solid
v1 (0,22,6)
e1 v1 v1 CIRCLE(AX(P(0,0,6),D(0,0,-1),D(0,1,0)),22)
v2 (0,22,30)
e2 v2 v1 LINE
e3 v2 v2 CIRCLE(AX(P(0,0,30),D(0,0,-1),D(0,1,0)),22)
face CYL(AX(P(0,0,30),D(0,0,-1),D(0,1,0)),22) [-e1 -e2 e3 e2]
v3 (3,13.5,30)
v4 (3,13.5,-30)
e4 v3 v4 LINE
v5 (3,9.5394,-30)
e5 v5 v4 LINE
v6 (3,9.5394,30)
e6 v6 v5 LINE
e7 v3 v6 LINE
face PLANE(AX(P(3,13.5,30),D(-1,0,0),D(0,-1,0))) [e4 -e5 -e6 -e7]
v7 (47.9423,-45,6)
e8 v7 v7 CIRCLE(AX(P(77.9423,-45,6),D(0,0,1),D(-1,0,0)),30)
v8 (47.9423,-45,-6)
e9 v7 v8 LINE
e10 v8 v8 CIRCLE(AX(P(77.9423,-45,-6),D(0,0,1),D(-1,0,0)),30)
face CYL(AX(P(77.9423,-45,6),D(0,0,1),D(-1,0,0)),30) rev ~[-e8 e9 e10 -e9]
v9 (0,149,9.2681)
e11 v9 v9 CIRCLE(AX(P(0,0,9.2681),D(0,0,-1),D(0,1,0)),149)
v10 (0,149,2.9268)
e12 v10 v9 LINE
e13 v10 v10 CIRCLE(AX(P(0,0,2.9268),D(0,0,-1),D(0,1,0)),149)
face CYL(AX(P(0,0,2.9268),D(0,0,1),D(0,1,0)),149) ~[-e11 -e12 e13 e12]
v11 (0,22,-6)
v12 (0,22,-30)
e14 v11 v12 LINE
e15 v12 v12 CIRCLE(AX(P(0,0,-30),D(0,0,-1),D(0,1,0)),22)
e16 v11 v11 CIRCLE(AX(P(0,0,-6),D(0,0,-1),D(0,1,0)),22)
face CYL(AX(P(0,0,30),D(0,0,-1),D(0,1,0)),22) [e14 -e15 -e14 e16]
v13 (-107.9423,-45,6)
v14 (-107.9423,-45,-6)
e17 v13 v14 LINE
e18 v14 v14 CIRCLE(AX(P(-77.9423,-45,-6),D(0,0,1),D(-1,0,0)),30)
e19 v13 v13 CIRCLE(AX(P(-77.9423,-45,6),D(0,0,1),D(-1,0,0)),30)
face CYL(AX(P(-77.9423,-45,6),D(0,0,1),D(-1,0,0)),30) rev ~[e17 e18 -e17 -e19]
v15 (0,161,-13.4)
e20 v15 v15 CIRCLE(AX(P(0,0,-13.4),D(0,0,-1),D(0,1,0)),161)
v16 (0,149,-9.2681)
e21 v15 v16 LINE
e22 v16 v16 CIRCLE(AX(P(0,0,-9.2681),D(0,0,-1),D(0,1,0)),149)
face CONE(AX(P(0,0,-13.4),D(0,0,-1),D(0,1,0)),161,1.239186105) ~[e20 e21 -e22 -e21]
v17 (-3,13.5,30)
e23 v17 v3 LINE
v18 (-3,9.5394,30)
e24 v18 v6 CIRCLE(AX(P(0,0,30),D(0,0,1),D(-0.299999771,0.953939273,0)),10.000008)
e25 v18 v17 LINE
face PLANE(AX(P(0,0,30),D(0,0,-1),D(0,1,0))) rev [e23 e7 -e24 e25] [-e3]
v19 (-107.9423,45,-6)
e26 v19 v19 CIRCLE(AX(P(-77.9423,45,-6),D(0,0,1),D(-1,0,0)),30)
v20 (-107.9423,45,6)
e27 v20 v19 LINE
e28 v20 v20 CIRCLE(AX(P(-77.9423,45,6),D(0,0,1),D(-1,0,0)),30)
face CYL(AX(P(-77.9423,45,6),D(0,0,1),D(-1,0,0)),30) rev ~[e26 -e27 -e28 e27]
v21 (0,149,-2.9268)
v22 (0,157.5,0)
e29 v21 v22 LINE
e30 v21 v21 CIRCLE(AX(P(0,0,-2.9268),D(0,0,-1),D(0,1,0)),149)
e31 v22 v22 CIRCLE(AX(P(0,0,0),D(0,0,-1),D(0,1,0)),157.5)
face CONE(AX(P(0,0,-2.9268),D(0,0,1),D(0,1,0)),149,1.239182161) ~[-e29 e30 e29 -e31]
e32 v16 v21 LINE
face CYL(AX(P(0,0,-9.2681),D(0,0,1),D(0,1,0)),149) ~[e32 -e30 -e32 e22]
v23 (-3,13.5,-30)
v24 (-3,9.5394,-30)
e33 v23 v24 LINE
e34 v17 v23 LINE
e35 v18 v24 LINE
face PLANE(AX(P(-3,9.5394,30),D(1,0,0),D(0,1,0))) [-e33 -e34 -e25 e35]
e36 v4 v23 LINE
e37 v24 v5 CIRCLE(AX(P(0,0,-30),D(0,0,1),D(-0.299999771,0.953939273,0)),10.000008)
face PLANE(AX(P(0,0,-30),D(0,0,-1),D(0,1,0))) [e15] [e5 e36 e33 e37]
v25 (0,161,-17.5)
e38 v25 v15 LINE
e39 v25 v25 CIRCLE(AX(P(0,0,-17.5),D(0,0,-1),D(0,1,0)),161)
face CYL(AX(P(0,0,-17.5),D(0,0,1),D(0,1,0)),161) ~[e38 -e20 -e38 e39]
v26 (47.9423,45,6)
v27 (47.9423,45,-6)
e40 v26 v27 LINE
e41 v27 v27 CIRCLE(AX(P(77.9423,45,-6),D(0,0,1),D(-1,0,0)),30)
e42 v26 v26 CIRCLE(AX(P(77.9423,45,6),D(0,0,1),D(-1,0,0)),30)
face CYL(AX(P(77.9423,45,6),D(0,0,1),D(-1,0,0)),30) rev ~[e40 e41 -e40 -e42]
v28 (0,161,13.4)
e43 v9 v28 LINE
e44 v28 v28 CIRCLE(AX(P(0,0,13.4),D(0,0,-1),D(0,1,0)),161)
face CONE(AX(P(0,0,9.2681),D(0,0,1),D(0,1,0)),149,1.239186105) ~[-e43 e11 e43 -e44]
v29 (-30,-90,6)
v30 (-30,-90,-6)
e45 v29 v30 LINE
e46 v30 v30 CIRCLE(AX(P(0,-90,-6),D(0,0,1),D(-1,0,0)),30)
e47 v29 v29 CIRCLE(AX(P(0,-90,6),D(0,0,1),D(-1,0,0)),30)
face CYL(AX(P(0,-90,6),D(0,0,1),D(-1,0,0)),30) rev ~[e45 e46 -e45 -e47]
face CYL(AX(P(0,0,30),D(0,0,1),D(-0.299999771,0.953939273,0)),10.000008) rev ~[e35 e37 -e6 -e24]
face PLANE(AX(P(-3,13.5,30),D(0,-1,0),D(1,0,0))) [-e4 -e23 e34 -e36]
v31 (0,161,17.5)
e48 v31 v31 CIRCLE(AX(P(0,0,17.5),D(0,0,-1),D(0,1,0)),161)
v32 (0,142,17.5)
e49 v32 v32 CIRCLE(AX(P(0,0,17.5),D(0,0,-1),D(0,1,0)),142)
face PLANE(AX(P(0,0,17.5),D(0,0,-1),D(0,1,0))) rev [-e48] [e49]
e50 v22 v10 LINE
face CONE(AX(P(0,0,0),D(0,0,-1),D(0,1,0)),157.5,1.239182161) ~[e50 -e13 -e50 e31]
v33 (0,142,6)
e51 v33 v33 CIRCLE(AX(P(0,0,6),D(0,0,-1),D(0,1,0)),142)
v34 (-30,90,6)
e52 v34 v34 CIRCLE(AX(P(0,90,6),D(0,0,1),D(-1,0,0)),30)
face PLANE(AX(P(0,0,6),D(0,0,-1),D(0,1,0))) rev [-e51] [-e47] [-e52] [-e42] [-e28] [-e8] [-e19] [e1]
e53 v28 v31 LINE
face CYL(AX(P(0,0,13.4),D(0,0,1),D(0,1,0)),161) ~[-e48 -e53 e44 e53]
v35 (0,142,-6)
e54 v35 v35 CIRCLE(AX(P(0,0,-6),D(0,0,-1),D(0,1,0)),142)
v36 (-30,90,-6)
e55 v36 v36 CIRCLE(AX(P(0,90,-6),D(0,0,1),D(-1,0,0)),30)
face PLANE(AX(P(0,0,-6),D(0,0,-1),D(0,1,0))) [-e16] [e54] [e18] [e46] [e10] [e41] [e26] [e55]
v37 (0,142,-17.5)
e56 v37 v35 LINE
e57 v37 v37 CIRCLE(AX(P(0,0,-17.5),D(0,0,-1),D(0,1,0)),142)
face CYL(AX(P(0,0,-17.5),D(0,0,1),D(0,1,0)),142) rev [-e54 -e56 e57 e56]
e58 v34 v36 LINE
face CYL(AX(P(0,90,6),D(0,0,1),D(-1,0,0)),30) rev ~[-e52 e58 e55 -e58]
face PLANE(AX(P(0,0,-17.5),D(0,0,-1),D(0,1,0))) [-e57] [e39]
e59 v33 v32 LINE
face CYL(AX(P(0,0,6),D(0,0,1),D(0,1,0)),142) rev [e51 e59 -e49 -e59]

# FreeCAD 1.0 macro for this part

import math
import FreeCAD as App
import Part
import Sketcher
from FreeCAD import Vector
Q = App.Units.Quantity

doc = App.newDocument("Part")
params = doc.addObject("Spreadsheet::Sheet", "Params")
for row, (alias, value) in enumerate([
    ("sketch1_width", "22 mm"),
    ("sketch1_height", "60 mm"),
    ("sketch1_height2", "11.5 mm"),
    ("revolution_angle", "360 deg"),
    ("sketch2_diameter", "60 mm"),
    ("pocket1_length", "90 mm"),
    ("sketch3_radius", "10 mm"),
    ("sketch3_width", "6 mm"),
    ("pocket2_length", "110 mm"),
], start=1):
    params.set(f"A{row}", alias)
    params.set(f"B{row}", "=" + value)
    params.setAlias(f"B{row}", alias)

body = doc.addObject("PartDesign::Body", "Body")

# Sketch on YZ plane
sketch1 = body.newObject("Sketcher::SketchObject", "Sketch")
sketch1.AttachmentSupport = (doc.getObject("YZ_Plane"), [""])
sketch1.MapMode = "FlatFace"
sketch1.addGeometry(Part.LineSegment(Vector(22, 30, 0), Vector(0, 30, 0)), False)
sketch1.addGeometry(Part.LineSegment(Vector(0, 30, 0), Vector(0, -30, 0)), False)
sketch1.addGeometry(Part.LineSegment(Vector(0, -30, 0), Vector(22, -30, 0)), False)
sketch1.addGeometry(Part.LineSegment(Vector(22, -30, 0), Vector(22, -6, 0)), False)
sketch1.addGeometry(Part.LineSegment(Vector(22, -6, 0), Vector(142, -6, 0)), False)
sketch1.addGeometry(Part.LineSegment(Vector(142, -6, 0), Vector(142, -17.5, 0)), False)
sketch1.addGeometry(Part.LineSegment(Vector(142, -17.5, 0), Vector(161, -17.5, 0)), False)
sketch1.addGeometry(Part.LineSegment(Vector(161, -17.5, 0), Vector(161, -13.4, 0)), False)
sketch1.addGeometry(Part.LineSegment(Vector(161, -13.4, 0), Vector(149, -9.3, 0)), False)
sketch1.addGeometry(Part.LineSegment(Vector(149, -9.3, 0), Vector(149, -2.9, 0)), False)
sketch1.addGeometry(Part.LineSegment(Vector(149, -2.9, 0), Vector(157.5, 0, 0)), False)
sketch1.addGeometry(Part.LineSegment(Vector(157.5, 0, 0), Vector(149, 2.9, 0)), False)
sketch1.addGeometry(Part.LineSegment(Vector(149, 2.9, 0), Vector(149, 9.3, 0)), False)
sketch1.addGeometry(Part.LineSegment(Vector(149, 9.3, 0), Vector(161, 13.4, 0)), False)
sketch1.addGeometry(Part.LineSegment(Vector(161, 13.4, 0), Vector(161, 17.5, 0)), False)
sketch1.addGeometry(Part.LineSegment(Vector(161, 17.5, 0), Vector(142, 17.5, 0)), False)
sketch1.addGeometry(Part.LineSegment(Vector(142, 17.5, 0), Vector(142, 6, 0)), False)
sketch1.addGeometry(Part.LineSegment(Vector(142, 6, 0), Vector(22, 6, 0)), False)
sketch1.addGeometry(Part.LineSegment(Vector(22, 6, 0), Vector(22, 30, 0)), False)
sketch1.addConstraint(Sketcher.Constraint("Coincident", 0, 2, 1, 1))
sketch1.addConstraint(Sketcher.Constraint("Coincident", 1, 2, 2, 1))
sketch1.addConstraint(Sketcher.Constraint("Coincident", 2, 2, 3, 1))
sketch1.addConstraint(Sketcher.Constraint("Coincident", 3, 2, 4, 1))
sketch1.addConstraint(Sketcher.Constraint("Coincident", 4, 2, 5, 1))
sketch1.addConstraint(Sketcher.Constraint("Coincident", 5, 2, 6, 1))
sketch1.addConstraint(Sketcher.Constraint("Coincident", 6, 2, 7, 1))
sketch1.addConstraint(Sketcher.Constraint("Coincident", 7, 2, 8, 1))
sketch1.addConstraint(Sketcher.Constraint("Coincident", 8, 2, 9, 1))
sketch1.addConstraint(Sketcher.Constraint("Coincident", 9, 2, 10, 1))
sketch1.addConstraint(Sketcher.Constraint("Coincident", 10, 2, 11, 1))
sketch1.addConstraint(Sketcher.Constraint("Coincident", 11, 2, 12, 1))
sketch1.addConstraint(Sketcher.Constraint("Coincident", 12, 2, 13, 1))
sketch1.addConstraint(Sketcher.Constraint("Coincident", 13, 2, 14, 1))
sketch1.addConstraint(Sketcher.Constraint("Coincident", 14, 2, 15, 1))
sketch1.addConstraint(Sketcher.Constraint("Coincident", 15, 2, 16, 1))
sketch1.addConstraint(Sketcher.Constraint("Coincident", 16, 2, 17, 1))
sketch1.addConstraint(Sketcher.Constraint("Coincident", 17, 2, 18, 1))
sketch1.addConstraint(Sketcher.Constraint("Coincident", 18, 2, 0, 1))
sketch1.addConstraint(Sketcher.Constraint("Horizontal", 0))
sketch1.addConstraint(Sketcher.Constraint("Vertical", 1))
sketch1.addConstraint(Sketcher.Constraint("Horizontal", 2))
sketch1.addConstraint(Sketcher.Constraint("Vertical", 3))
sketch1.addConstraint(Sketcher.Constraint("Horizontal", 4))
sketch1.addConstraint(Sketcher.Constraint("Vertical", 5))
sketch1.addConstraint(Sketcher.Constraint("Horizontal", 6))
sketch1.addConstraint(Sketcher.Constraint("Vertical", 7))
sketch1.addConstraint(Sketcher.Constraint("Vertical", 9))
sketch1.addConstraint(Sketcher.Constraint("Vertical", 12))
sketch1.addConstraint(Sketcher.Constraint("Vertical", 14))
sketch1.addConstraint(Sketcher.Constraint("Horizontal", 15))
sketch1.addConstraint(Sketcher.Constraint("Vertical", 16))
sketch1.addConstraint(Sketcher.Constraint("Horizontal", 17))
sketch1.addConstraint(Sketcher.Constraint("Vertical", 18))
sketch1.addConstraint(Sketcher.Constraint("Symmetric", 0, 2, 1, 2, -1, 1))
sketch1.addConstraint(Sketcher.Constraint("Symmetric", 9, 2, 11, 2, -1))
sketch1.addConstraint(Sketcher.Constraint("Symmetric", 7, 2, 13, 2, -1))
sketch1.addConstraint(Sketcher.Constraint("Symmetric", 5, 2, 15, 2, -1))
sketch1.addConstraint(Sketcher.Constraint("Symmetric", 3, 2, 17, 2, -1))
sketch1.addConstraint(Sketcher.Constraint("PointOnObject", 10, 2, -1))
sketch1.addConstraint(Sketcher.Constraint("Parallel", 8, 11))
sketch1.addConstraint(Sketcher.Constraint("Parallel", 10, 13))
sketch1.addConstraint(Sketcher.Constraint("DistanceX", 0, 2, 0, 1, Q("22 mm")))
sketch1.addConstraint(Sketcher.Constraint("DistanceY", 1, 2, 1, 1, Q("60 mm")))
sketch1.addConstraint(Sketcher.Constraint("Angle", 8, Q("161.0001 deg")))
sketch1.addConstraint(Sketcher.Constraint("DistanceX", -1, 1, 4, 2, Q("142 mm")))
sketch1.addConstraint(Sketcher.Constraint("DistanceX", -1, 1, 6, 2, Q("161 mm")))
sketch1.addConstraint(Sketcher.Constraint("DistanceX", -1, 1, 8, 2, Q("149 mm")))
sketch1.addConstraint(Sketcher.Constraint("DistanceY", 4, 2, 16, 2, Q("12 mm")))
sketch1.addConstraint(Sketcher.Constraint("DistanceY", 7, 2, -1, 1, Q("13.4 mm")))
sketch1.addConstraint(Sketcher.Constraint("DistanceX", -1, 1, 10, 2, Q("157.5 mm")))
sketch1.addConstraint(Sketcher.Constraint("DistanceY", 5, 2, 5, 1, Q("11.5 mm")))
sketch1.setExpression("Constraints[42]", "Params.sketch1_width")
sketch1.setExpression("Constraints[43]", "Params.sketch1_height")
sketch1.setExpression("Constraints[51]", "Params.sketch1_height2")
revolution = body.newObject("PartDesign::Revolution", "Revolution")
revolution.Profile = sketch1
revolution.ReferenceAxis = (sketch1, ["V_Axis"])
revolution.setExpression("Angle", "Params.revolution_angle")

# Sketch on XY plane
sketch2 = body.newObject("Sketcher::SketchObject", "Sketch001")
sketch2.AttachmentSupport = (doc.getObject("XY_Plane"), [""])
sketch2.MapMode = "FlatFace"
sketch2.AttachmentOffset = App.Placement(Vector(0, 0, 6), App.Rotation())
sketch2.addGeometry(Part.Circle(Vector(0, 90, 0), Vector(0, 0, 1), 30), False)
sketch2.addGeometry(Part.Circle(Vector(-78, 45, 0), Vector(0, 0, 1), 30), False)
sketch2.addGeometry(Part.Circle(Vector(-78, -45, 0), Vector(0, 0, 1), 30), False)
sketch2.addGeometry(Part.Circle(Vector(0, -90, 0), Vector(0, 0, 1), 30), False)
sketch2.addGeometry(Part.Circle(Vector(78, -45, 0), Vector(0, 0, 1), 30), False)
sketch2.addGeometry(Part.Circle(Vector(78, 45, 0), Vector(0, 0, 1), 30), False)
sketch2.addConstraint(Sketcher.Constraint("Equal", 0, 1))
sketch2.addConstraint(Sketcher.Constraint("Equal", 1, 2))
sketch2.addConstraint(Sketcher.Constraint("Equal", 2, 3))
sketch2.addConstraint(Sketcher.Constraint("Equal", 3, 4))
sketch2.addConstraint(Sketcher.Constraint("Equal", 4, 5))
sketch2.addConstraint(Sketcher.Constraint("Symmetric", 0, 3, 3, 3, -1, 1))
sketch2.addConstraint(Sketcher.Constraint("Symmetric", 1, 3, 4, 3, -1, 1))
sketch2.addConstraint(Sketcher.Constraint("Symmetric", 2, 3, 5, 3, -1, 1))
sketch2.addConstraint(Sketcher.Constraint("Symmetric", 2, 3, 4, 3, -2))
sketch2.addConstraint(Sketcher.Constraint("PointOnObject", 0, 3, -2))
sketch2.addConstraint(Sketcher.Constraint("Diameter", 0, Q("60 mm")))
sketch2.addConstraint(Sketcher.Constraint("DistanceY", -1, 1, 0, 3, Q("90 mm")))
sketch2.addConstraint(Sketcher.Constraint("DistanceY", 2, 3, 1, 3, Q("90 mm")))
sketch2.addConstraint(Sketcher.Constraint("DistanceX", 1, 3, -1, 1, Q("77.9423 mm")))
sketch2.setExpression("Constraints[10]", "Params.sketch2_diameter")
pocket1 = body.newObject("PartDesign::Pocket", "Pocket")
pocket1.Profile = sketch2
pocket1.setExpression("Length", "Params.pocket1_length")

# Sketch on XY plane
sketch3 = body.newObject("Sketcher::SketchObject", "Sketch002")
sketch3.AttachmentSupport = (doc.getObject("XY_Plane"), [""])
sketch3.MapMode = "FlatFace"
sketch3.AttachmentOffset = App.Placement(Vector(0, 0, 30), App.Rotation())
sketch3.addGeometry(Part.LineSegment(Vector(-3, 13.5, 0), Vector(-3, 9.5, 0)), False)
sketch3.addGeometry(Part.ArcOfCircle(Part.Circle(Vector(0, 0, 0), Vector(0, 0, 1), 10), math.radians(107), math.radians(433)), False)
sketch3.addGeometry(Part.LineSegment(Vector(3, 9.5, 0), Vector(3, 13.5, 0)), False)
sketch3.addGeometry(Part.LineSegment(Vector(3, 13.5, 0), Vector(-3, 13.5, 0)), False)
sketch3.addConstraint(Sketcher.Constraint("Coincident", 0, 2, 1, 1))
sketch3.addConstraint(Sketcher.Constraint("Coincident", 1, 2, 2, 1))
sketch3.addConstraint(Sketcher.Constraint("Coincident", 2, 2, 3, 1))
sketch3.addConstraint(Sketcher.Constraint("Coincident", 3, 2, 0, 1))
sketch3.addConstraint(Sketcher.Constraint("Vertical", 0))
sketch3.addConstraint(Sketcher.Constraint("Vertical", 2))
sketch3.addConstraint(Sketcher.Constraint("Horizontal", 3))
sketch3.addConstraint(Sketcher.Constraint("Coincident", 1, 3, -1, 1))
sketch3.addConstraint(Sketcher.Constraint("Horizontal", 0, 2, 1, 2))
sketch3.addConstraint(Sketcher.Constraint("Radius", 1, Q("10 mm")))
sketch3.addConstraint(Sketcher.Constraint("DistanceX", 3, 2, 3, 1, Q("6 mm")))
sketch3.addConstraint(Sketcher.Constraint("DistanceY", -1, 1, 2, 2, Q("13.5 mm")))
sketch3.setExpression("Constraints[9]", "Params.sketch3_radius")
sketch3.setExpression("Constraints[10]", "Params.sketch3_width")
pocket2 = body.newObject("PartDesign::Pocket", "Pocket001")
pocket2.Profile = sketch3
pocket2.setExpression("Length", "Params.pocket2_length")

doc.recompute()
